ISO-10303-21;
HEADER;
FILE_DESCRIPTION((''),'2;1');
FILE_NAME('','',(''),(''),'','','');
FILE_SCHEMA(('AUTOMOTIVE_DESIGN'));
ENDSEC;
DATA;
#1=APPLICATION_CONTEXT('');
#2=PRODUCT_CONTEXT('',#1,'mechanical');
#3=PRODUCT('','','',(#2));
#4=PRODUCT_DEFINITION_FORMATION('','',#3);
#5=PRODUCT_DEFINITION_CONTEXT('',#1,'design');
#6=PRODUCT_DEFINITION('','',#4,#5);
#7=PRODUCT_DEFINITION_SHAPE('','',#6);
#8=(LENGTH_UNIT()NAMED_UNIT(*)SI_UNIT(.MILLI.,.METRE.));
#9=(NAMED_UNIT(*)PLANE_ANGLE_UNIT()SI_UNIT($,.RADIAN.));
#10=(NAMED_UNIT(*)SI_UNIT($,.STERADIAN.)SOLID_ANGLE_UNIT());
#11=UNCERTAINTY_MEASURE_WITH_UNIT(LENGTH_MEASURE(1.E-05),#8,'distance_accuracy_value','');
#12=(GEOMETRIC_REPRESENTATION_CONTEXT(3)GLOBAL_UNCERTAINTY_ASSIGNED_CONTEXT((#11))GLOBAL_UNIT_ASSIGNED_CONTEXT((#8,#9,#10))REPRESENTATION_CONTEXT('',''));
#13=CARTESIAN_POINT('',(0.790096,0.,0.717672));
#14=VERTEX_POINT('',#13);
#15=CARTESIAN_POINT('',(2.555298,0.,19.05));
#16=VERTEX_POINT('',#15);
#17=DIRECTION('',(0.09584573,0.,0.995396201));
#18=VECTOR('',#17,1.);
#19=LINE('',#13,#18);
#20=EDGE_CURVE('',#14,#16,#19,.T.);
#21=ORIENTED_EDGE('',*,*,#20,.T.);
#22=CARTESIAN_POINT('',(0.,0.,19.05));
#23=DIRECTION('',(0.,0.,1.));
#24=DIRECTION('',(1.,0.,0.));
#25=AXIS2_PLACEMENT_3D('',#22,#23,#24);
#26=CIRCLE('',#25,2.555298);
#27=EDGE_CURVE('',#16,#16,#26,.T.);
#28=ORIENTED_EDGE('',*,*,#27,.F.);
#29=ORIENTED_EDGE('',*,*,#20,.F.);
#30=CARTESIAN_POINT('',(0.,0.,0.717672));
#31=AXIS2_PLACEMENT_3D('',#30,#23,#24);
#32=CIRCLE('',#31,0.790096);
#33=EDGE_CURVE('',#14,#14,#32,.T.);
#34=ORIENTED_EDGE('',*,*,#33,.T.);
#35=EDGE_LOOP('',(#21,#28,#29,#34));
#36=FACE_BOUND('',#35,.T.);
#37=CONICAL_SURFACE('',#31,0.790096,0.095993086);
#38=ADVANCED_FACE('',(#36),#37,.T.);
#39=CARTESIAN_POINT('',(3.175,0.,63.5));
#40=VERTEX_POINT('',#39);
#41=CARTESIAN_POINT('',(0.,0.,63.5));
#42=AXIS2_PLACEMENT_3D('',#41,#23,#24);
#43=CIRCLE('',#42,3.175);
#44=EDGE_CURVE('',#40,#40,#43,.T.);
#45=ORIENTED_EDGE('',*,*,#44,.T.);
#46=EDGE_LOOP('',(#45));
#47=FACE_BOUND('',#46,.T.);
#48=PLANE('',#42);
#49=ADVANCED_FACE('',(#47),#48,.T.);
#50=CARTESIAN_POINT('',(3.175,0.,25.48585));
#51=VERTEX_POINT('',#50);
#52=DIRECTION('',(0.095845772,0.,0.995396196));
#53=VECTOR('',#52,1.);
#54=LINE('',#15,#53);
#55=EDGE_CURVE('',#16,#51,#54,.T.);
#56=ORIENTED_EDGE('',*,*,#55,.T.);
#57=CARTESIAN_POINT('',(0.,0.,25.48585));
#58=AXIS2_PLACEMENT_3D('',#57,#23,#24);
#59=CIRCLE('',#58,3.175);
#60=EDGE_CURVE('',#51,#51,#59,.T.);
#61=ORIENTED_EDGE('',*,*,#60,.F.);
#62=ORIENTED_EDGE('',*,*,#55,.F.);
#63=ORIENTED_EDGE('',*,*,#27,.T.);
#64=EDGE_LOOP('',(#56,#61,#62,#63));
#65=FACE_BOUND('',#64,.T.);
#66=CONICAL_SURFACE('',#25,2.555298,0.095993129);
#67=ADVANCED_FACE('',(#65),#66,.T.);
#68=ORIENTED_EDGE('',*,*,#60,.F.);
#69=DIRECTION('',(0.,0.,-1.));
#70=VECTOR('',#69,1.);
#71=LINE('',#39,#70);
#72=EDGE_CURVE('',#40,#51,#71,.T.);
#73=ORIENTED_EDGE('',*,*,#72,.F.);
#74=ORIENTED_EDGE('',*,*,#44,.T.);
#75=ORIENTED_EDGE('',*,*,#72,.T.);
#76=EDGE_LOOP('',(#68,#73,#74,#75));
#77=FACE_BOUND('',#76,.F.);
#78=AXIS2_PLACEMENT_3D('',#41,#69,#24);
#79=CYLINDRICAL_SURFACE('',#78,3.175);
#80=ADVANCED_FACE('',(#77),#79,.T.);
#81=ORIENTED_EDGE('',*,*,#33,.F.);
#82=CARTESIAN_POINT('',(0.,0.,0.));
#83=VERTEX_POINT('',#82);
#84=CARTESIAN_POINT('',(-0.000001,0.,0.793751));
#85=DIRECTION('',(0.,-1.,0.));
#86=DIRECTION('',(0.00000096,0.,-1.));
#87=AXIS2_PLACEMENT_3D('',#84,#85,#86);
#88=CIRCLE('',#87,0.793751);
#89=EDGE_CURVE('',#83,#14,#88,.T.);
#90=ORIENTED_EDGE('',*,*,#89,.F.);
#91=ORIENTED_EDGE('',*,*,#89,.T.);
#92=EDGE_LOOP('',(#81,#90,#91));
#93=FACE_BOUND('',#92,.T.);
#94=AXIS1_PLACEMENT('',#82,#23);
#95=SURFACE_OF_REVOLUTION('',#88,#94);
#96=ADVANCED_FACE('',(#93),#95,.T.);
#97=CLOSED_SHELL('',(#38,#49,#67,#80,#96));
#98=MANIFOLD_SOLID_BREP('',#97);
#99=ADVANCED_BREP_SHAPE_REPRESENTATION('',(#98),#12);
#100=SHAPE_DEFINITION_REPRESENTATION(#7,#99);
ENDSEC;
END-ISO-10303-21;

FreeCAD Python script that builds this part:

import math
import FreeCAD as App
import Part
import Sketcher
from FreeCAD import Vector
Q = App.Units.Quantity

doc = App.newDocument("Part")
body = doc.addObject("PartDesign::Body", "Body")

# Sketch on XZ plane
sketch1 = doc.addObject("Sketcher::SketchObject", "Sketch")
body.addObject(sketch1)
sketch1.AttachmentSupport = (doc.XZ_Plane, [""])
sketch1.MapMode = "FlatFace"
sketch1.addGeometry(Part.LineSegment(Vector(0, 63.5, 0), Vector(0, 0, 0)), False)
sketch1.addGeometry(Part.ArcOfCircle(Part.Circle(Vector(0, 0.8, 0), Vector(0, 0, 1), 0.8), math.radians(-90), math.radians(-6)), False)
sketch1.addGeometry(Part.LineSegment(Vector(0.8, 0.7, 0), Vector(2.6, 19.1, 0)), False)
sketch1.addGeometry(Part.LineSegment(Vector(2.6, 19.1, 0), Vector(3.2, 25.5, 0)), False)
sketch1.addGeometry(Part.LineSegment(Vector(3.2, 25.5, 0), Vector(3.2, 63.5, 0)), False)
sketch1.addGeometry(Part.LineSegment(Vector(3.2, 63.5, 0), Vector(0, 63.5, 0)), False)
sketch1.addConstraint(Sketcher.Constraint("Coincident", 0, 2, 1, 1))
sketch1.addConstraint(Sketcher.Constraint("Tangent", 1, 2, 2, 1))
sketch1.addConstraint(Sketcher.Constraint("Coincident", 2, 2, 3, 1))
sketch1.addConstraint(Sketcher.Constraint("Coincident", 3, 2, 4, 1))
sketch1.addConstraint(Sketcher.Constraint("Coincident", 4, 2, 5, 1))
sketch1.addConstraint(Sketcher.Constraint("Coincident", 5, 2, 0, 1))
sketch1.addConstraint(Sketcher.Constraint("Vertical", 0))
sketch1.addConstraint(Sketcher.Constraint("Vertical", 4))
sketch1.addConstraint(Sketcher.Constraint("Horizontal", 5))
sketch1.addConstraint(Sketcher.Constraint("Coincident", 0, 2, -1, 1))
sketch1.addConstraint(Sketcher.Constraint("PointOnObject", 1, 3, -2))
sketch1.addConstraint(Sketcher.Constraint("Parallel", 2, 3))
sketch1.addConstraint(Sketcher.Constraint("DistanceY", 0, 2, 0, 1, Q("2.5 in")))
sketch1.addConstraint(Sketcher.Constraint("Radius", 1, Q("0.03125 in")))
sketch1.addConstraint(Sketcher.Constraint("Angle", 2, Q("84.500001 deg")))
sketch1.addConstraint(Sketcher.Constraint("DistanceX", 5, 2, 5, 1, Q("0.125 in")))
sketch1.addConstraint(Sketcher.Constraint("DistanceY", -1, 1, 2, 2, Q("0.75 in")))
revolution = doc.addObject("PartDesign::Revolution", "Revolution")
body.addObject(revolution)
revolution.Profile = sketch1
revolution.ReferenceAxis = (sketch1, ["V_Axis"])
revolution.Angle = 360

doc.recompute()
